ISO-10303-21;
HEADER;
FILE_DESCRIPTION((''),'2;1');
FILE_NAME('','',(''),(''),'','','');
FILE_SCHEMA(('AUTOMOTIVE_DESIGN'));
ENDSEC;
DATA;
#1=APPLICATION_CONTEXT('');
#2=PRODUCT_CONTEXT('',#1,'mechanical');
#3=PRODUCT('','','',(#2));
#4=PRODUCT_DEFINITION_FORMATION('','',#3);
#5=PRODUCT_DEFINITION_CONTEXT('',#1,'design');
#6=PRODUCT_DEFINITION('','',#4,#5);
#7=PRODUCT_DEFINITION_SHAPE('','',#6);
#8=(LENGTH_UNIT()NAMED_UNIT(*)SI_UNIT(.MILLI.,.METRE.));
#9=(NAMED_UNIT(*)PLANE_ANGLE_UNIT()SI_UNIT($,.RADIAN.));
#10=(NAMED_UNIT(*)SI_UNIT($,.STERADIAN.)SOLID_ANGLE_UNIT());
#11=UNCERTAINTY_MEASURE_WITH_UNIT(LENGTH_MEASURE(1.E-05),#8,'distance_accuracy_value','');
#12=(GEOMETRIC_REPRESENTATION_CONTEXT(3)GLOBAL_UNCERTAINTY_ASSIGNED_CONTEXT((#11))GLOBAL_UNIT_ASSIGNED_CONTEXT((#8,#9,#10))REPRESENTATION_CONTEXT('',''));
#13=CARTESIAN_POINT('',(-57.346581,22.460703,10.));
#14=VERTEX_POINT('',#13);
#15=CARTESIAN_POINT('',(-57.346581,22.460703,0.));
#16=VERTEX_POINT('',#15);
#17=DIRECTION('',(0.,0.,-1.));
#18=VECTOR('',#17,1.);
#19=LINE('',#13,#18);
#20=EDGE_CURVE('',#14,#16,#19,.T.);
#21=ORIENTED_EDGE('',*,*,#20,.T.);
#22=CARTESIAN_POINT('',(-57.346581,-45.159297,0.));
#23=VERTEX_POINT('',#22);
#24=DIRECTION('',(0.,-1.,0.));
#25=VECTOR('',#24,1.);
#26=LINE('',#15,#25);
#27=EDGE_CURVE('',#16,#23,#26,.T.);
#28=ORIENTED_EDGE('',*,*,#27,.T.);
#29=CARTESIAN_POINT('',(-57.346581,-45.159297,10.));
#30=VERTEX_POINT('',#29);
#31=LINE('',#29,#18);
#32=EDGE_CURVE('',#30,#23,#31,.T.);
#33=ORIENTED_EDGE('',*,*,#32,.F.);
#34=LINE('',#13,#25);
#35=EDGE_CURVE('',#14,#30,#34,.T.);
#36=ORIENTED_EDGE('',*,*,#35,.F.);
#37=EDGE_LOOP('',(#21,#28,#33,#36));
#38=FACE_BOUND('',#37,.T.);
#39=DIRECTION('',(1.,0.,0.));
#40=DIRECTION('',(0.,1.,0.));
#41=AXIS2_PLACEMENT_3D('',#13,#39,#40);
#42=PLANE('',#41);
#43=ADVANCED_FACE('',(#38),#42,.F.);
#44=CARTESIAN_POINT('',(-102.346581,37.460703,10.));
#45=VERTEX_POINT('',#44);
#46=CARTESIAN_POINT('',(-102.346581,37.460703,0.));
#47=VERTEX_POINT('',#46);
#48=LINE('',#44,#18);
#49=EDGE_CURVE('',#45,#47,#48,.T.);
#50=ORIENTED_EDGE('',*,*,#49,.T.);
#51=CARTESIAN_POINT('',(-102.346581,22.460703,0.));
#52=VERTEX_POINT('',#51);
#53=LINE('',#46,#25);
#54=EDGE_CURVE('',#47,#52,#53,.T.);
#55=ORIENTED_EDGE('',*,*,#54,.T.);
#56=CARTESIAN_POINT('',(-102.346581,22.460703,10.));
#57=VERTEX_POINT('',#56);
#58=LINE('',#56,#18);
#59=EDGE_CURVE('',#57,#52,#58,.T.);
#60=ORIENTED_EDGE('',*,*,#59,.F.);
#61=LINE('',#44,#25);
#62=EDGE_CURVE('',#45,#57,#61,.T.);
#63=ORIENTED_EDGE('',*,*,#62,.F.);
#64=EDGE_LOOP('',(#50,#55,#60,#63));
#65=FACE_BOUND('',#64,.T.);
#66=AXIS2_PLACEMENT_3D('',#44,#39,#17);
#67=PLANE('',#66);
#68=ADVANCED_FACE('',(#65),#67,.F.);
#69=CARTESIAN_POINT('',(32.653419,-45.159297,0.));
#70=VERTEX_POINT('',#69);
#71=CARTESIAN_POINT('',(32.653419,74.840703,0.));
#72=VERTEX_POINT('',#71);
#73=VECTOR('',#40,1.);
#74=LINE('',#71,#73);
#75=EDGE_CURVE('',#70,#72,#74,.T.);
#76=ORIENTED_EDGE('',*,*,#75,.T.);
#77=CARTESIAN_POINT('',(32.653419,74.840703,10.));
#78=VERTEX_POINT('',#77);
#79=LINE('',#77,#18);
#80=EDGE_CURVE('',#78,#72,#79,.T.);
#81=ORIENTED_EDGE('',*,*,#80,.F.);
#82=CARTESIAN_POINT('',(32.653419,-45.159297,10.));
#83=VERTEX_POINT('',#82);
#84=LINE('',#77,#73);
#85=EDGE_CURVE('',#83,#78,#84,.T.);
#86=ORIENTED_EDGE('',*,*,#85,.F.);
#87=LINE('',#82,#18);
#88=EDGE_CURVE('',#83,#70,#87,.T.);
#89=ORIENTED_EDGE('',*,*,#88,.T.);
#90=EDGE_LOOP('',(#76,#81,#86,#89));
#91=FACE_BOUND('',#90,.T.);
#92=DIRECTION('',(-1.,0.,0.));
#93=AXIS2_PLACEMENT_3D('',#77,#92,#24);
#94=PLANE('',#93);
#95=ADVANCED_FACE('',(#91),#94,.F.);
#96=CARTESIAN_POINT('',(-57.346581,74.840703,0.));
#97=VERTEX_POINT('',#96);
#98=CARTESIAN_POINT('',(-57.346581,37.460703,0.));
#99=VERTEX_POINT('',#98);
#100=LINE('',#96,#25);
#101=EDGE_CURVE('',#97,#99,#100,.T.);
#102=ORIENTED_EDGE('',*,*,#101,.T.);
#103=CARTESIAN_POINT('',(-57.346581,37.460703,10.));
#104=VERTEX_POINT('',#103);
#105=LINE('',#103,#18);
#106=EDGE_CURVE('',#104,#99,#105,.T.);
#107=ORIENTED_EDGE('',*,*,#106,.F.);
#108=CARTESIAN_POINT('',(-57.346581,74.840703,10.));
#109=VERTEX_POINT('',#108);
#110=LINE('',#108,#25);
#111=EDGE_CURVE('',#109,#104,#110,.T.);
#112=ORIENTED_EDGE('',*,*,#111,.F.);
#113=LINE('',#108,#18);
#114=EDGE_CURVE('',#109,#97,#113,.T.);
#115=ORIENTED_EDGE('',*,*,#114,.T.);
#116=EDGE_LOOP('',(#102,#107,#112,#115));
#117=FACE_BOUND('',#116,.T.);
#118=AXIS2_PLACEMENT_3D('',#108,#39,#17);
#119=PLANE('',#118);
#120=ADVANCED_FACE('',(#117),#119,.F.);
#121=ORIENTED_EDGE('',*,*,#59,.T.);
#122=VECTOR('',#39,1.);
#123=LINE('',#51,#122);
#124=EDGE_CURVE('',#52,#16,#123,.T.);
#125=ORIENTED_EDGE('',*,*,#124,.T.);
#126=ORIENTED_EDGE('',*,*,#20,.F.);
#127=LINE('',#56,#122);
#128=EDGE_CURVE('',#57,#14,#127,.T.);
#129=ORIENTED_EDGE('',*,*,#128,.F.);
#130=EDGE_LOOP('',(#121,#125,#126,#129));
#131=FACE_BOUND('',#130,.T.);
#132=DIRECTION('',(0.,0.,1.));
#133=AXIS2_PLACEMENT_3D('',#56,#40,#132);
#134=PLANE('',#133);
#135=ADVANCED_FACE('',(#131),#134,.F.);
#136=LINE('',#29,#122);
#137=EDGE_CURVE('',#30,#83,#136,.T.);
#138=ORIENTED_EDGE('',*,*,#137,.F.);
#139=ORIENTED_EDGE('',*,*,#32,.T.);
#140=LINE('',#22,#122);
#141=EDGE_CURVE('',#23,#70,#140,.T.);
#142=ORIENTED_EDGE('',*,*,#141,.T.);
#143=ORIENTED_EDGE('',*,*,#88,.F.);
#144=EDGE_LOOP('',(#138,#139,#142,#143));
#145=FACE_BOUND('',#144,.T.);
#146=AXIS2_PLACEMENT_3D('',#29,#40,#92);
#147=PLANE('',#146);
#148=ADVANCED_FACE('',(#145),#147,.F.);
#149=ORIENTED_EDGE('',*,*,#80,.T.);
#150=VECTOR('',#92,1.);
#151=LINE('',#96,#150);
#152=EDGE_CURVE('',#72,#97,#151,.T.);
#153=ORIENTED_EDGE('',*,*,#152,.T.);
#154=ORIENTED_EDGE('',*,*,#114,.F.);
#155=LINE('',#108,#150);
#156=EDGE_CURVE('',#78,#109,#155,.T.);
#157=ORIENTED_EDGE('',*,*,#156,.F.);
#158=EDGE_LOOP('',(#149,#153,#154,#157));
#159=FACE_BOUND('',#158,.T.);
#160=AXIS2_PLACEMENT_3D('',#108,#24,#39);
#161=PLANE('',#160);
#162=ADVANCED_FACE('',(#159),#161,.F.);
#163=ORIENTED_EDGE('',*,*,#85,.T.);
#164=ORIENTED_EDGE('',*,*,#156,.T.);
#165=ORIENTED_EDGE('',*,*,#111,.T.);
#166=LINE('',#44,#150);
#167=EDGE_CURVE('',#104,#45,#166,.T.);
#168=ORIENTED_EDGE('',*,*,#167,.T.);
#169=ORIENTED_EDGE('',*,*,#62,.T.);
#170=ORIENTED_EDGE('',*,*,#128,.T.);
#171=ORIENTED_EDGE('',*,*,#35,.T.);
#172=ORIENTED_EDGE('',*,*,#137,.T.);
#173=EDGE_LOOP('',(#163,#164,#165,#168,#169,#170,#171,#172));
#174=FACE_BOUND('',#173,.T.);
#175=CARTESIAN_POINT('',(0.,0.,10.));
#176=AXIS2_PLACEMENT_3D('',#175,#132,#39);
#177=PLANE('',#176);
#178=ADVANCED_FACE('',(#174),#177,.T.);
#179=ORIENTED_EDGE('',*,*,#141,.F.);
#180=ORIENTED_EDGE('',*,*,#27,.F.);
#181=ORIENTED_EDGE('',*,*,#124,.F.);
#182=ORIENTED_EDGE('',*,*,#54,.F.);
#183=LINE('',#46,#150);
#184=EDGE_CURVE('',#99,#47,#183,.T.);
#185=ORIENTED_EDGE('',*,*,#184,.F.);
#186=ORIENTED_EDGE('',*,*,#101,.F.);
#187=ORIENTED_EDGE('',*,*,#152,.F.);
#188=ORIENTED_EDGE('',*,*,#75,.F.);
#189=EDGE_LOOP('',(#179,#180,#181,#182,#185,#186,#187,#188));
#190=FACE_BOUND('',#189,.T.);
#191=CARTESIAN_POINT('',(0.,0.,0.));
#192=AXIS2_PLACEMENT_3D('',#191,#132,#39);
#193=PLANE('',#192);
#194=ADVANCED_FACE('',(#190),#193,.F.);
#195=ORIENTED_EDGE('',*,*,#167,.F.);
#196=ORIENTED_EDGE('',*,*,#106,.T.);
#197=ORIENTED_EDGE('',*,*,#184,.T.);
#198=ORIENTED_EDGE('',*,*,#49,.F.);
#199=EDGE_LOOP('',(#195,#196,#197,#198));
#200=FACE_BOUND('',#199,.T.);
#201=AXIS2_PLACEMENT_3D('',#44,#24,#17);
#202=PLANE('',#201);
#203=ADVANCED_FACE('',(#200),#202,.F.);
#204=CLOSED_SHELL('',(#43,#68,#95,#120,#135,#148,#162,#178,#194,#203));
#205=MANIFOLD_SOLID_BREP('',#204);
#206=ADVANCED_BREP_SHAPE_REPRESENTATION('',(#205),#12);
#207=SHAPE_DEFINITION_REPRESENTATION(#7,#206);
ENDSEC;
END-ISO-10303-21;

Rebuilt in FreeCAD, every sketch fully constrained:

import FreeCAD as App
import Part
import Sketcher

V = App.Vector


def add_polygon(sketch, points):
    """Adds a closed chain of lines whose ends are joined by coincident constraints."""
    first, n = sketch.GeometryCount, len(points)
    for a, b in zip(points, points[1:] + points[:1]):
        sketch.addGeometry(Part.LineSegment(App.Vector(*a, 0), App.Vector(*b, 0)), False)
    for i in range(n):
        sketch.addConstraint(Sketcher.Constraint("Coincident", first + i, 2, first + (i + 1) % n, 1))

doc = App.newDocument("Part")
body = doc.addObject("PartDesign::Body", "Body")

sketch1 = body.newObject("Sketcher::SketchObject", "Sketch")
sketch1.AttachmentSupport = (doc.getObject("XY_Plane"), [""])
sketch1.MapMode = "FlatFace"
add_polygon(sketch1, [(32.653419, 74.840703), (-57.346581, 74.840703), (-57.346581, 37.460703), (-102.346581, 37.460703), (-102.346581, 22.460703), (-57.346581, 22.460703), (-57.346581, -45.159297), (32.653419, -45.159297)])
sketch1.addConstraint(Sketcher.Constraint("Horizontal", 0))
sketch1.addConstraint(Sketcher.Constraint("Vertical", 1))
sketch1.addConstraint(Sketcher.Constraint("Horizontal", 2))
sketch1.addConstraint(Sketcher.Constraint("Vertical", 3))
sketch1.addConstraint(Sketcher.Constraint("Horizontal", 4))
sketch1.addConstraint(Sketcher.Constraint("Vertical", 5))
sketch1.addConstraint(Sketcher.Constraint("Horizontal", 6))
sketch1.addConstraint(Sketcher.Constraint("Vertical", 7))
sketch1.addConstraint(Sketcher.Constraint("Vertical", 1, 2, 4, 2))
sketch1.addConstraint(Sketcher.Constraint("DistanceX", 0, 2, 0, 1, 90.0))
sketch1.addConstraint(Sketcher.Constraint("DistanceX", 2, 2, 2, 1, 45.0))
sketch1.addConstraint(Sketcher.Constraint("DistanceY", 3, 2, 3, 1, 15.0))
sketch1.addConstraint(Sketcher.Constraint("DistanceY", 7, 1, 7, 2, 120.0))
sketch1.addConstraint(Sketcher.Constraint("DistanceY", 1, 2, 1, 1, 37.38))
sketch1.addConstraint(Sketcher.Constraint("DistanceX", 0, 2, -1, 1, 57.346581))
sketch1.addConstraint(Sketcher.Constraint("DistanceY", -1, 1, 0, 2, 74.840703))
pad1 = body.newObject("PartDesign::Pad", "Pad")
pad1.Profile = sketch1
pad1.Length = 10

doc.recompute()
